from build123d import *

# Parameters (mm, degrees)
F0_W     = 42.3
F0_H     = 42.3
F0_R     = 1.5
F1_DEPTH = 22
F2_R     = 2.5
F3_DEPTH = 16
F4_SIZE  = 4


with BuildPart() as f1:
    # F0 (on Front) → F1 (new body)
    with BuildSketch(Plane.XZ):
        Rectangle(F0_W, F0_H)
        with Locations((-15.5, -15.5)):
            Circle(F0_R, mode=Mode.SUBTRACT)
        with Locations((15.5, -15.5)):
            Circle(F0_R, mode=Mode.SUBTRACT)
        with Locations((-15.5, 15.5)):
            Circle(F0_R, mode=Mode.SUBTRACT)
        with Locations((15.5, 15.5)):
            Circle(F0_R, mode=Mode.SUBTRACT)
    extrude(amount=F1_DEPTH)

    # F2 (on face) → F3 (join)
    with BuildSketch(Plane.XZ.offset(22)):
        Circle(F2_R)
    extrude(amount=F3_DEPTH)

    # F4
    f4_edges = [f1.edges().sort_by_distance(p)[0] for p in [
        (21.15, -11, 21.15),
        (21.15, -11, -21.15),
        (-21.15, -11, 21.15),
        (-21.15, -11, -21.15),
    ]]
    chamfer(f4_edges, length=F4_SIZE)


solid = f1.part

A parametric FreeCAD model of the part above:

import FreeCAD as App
import Part
import Sketcher


def edges_at(feature, points):
    """Names of the edges that pass closest to the given points."""
    edges = feature.Shape.Edges
    near = lambda p: min(range(len(edges)), key=lambda i: edges[i].distToShape(Part.Vertex(*p))[0])
    return sorted({f"Edge{near(p) + 1}" for p in points})


def add_polygon(sketch, points):
    """Adds a closed chain of lines whose ends are joined by coincident constraints."""
    first, n = sketch.GeometryCount, len(points)
    for a, b in zip(points, points[1:] + points[:1]):
        sketch.addGeometry(Part.LineSegment(App.Vector(*a, 0), App.Vector(*b, 0)), False)
    for i in range(n):
        sketch.addConstraint(Sketcher.Constraint("Coincident", first + i, 2, first + (i + 1) % n, 1))

doc = App.newDocument("Part")
body = doc.addObject("PartDesign::Body", "Body")

# Sketch on XZ plane
sketch1 = body.newObject("Sketcher::SketchObject", "Sketch")
sketch1.AttachmentSupport = (doc.getObject("XZ_Plane"), [""])
sketch1.MapMode = "FlatFace"
add_polygon(sketch1, [(-21.15, 21.15), (-21.15, -21.15), (21.15, -21.15), (21.15, 21.15)])  # lines 0-3
sketch1.addGeometry(Part.Circle(App.Vector(-15.5, -15.5, 0), App.Vector(0, 0, 1), 1.5), False)  # 4
sketch1.addGeometry(Part.Circle(App.Vector(15.5, -15.5, 0), App.Vector(0, 0, 1), 1.5), False)  # 5
sketch1.addGeometry(Part.Circle(App.Vector(-15.5, 15.5, 0), App.Vector(0, 0, 1), 1.5), False)  # 6
sketch1.addGeometry(Part.Circle(App.Vector(15.5, 15.5, 0), App.Vector(0, 0, 1), 1.5), False)  # 7
sketch1.addConstraint(Sketcher.Constraint("Vertical", 0))
sketch1.addConstraint(Sketcher.Constraint("Horizontal", 1))
sketch1.addConstraint(Sketcher.Constraint("Vertical", 2))
sketch1.addConstraint(Sketcher.Constraint("Horizontal", 3))
sketch1.addConstraint(Sketcher.Constraint("Equal", 4, 5))
sketch1.addConstraint(Sketcher.Constraint("Equal", 5, 6))
sketch1.addConstraint(Sketcher.Constraint("Equal", 6, 7))
sketch1.addConstraint(Sketcher.Constraint("Symmetric", 5, 3, 6, 3, -1, 1))
sketch1.addConstraint(Sketcher.Constraint("Symmetric", 4, 3, 7, 3, -1, 1))
sketch1.addConstraint(Sketcher.Constraint("Symmetric", 0, 2, 2, 2, -1, 1))
sketch1.addConstraint(Sketcher.Constraint("Symmetric", 4, 3, 5, 3, -2))
sketch1.addConstraint(Sketcher.Constraint("Equal", 3, 0))
sketch1.addConstraint(Sketcher.Constraint("Diameter", 4, 3.0))
sketch1.addConstraint(Sketcher.Constraint("DistanceX", 1, 1, 1, 2, 42.3))
sketch1.addConstraint(Sketcher.Constraint("DistanceX", 4, 3, 5, 3, 31.0))
sketch1.addConstraint(Sketcher.Constraint("DistanceY", 4, 3, 6, 3, 31.0))
pad1 = body.newObject("PartDesign::Pad", "Pad")
pad1.Profile = sketch1
pad1.Length = 22

# Sketch on XZ plane
sketch2 = body.newObject("Sketcher::SketchObject", "Sketch001")
sketch2.AttachmentSupport = (doc.getObject("XZ_Plane"), [""])
sketch2.MapMode = "FlatFace"
sketch2.AttachmentOffset = App.Placement(App.Vector(0, 0, 22), App.Rotation())
sketch2.addGeometry(Part.Circle(App.Vector(0, 0, 0), App.Vector(0, 0, 1), 2.5), False)
sketch2.addConstraint(Sketcher.Constraint("Coincident", 0, 3, -1, 1))
sketch2.addConstraint(Sketcher.Constraint("Diameter", 0, 5.0))
pad2 = body.newObject("PartDesign::Pad", "Pad001")
pad2.Profile = sketch2
pad2.Length = 16
doc.recompute()

chamfer = body.newObject("PartDesign::Chamfer", "Chamfer")
chamfer.Base = (pad2, edges_at(pad2, [
    (21.15, -11, 21.15),
    (21.15, -11, -21.15),
    (-21.15, -11, 21.15),
    (-21.15, -11, -21.15),
]))
chamfer.Size = 4

doc.recompute()
